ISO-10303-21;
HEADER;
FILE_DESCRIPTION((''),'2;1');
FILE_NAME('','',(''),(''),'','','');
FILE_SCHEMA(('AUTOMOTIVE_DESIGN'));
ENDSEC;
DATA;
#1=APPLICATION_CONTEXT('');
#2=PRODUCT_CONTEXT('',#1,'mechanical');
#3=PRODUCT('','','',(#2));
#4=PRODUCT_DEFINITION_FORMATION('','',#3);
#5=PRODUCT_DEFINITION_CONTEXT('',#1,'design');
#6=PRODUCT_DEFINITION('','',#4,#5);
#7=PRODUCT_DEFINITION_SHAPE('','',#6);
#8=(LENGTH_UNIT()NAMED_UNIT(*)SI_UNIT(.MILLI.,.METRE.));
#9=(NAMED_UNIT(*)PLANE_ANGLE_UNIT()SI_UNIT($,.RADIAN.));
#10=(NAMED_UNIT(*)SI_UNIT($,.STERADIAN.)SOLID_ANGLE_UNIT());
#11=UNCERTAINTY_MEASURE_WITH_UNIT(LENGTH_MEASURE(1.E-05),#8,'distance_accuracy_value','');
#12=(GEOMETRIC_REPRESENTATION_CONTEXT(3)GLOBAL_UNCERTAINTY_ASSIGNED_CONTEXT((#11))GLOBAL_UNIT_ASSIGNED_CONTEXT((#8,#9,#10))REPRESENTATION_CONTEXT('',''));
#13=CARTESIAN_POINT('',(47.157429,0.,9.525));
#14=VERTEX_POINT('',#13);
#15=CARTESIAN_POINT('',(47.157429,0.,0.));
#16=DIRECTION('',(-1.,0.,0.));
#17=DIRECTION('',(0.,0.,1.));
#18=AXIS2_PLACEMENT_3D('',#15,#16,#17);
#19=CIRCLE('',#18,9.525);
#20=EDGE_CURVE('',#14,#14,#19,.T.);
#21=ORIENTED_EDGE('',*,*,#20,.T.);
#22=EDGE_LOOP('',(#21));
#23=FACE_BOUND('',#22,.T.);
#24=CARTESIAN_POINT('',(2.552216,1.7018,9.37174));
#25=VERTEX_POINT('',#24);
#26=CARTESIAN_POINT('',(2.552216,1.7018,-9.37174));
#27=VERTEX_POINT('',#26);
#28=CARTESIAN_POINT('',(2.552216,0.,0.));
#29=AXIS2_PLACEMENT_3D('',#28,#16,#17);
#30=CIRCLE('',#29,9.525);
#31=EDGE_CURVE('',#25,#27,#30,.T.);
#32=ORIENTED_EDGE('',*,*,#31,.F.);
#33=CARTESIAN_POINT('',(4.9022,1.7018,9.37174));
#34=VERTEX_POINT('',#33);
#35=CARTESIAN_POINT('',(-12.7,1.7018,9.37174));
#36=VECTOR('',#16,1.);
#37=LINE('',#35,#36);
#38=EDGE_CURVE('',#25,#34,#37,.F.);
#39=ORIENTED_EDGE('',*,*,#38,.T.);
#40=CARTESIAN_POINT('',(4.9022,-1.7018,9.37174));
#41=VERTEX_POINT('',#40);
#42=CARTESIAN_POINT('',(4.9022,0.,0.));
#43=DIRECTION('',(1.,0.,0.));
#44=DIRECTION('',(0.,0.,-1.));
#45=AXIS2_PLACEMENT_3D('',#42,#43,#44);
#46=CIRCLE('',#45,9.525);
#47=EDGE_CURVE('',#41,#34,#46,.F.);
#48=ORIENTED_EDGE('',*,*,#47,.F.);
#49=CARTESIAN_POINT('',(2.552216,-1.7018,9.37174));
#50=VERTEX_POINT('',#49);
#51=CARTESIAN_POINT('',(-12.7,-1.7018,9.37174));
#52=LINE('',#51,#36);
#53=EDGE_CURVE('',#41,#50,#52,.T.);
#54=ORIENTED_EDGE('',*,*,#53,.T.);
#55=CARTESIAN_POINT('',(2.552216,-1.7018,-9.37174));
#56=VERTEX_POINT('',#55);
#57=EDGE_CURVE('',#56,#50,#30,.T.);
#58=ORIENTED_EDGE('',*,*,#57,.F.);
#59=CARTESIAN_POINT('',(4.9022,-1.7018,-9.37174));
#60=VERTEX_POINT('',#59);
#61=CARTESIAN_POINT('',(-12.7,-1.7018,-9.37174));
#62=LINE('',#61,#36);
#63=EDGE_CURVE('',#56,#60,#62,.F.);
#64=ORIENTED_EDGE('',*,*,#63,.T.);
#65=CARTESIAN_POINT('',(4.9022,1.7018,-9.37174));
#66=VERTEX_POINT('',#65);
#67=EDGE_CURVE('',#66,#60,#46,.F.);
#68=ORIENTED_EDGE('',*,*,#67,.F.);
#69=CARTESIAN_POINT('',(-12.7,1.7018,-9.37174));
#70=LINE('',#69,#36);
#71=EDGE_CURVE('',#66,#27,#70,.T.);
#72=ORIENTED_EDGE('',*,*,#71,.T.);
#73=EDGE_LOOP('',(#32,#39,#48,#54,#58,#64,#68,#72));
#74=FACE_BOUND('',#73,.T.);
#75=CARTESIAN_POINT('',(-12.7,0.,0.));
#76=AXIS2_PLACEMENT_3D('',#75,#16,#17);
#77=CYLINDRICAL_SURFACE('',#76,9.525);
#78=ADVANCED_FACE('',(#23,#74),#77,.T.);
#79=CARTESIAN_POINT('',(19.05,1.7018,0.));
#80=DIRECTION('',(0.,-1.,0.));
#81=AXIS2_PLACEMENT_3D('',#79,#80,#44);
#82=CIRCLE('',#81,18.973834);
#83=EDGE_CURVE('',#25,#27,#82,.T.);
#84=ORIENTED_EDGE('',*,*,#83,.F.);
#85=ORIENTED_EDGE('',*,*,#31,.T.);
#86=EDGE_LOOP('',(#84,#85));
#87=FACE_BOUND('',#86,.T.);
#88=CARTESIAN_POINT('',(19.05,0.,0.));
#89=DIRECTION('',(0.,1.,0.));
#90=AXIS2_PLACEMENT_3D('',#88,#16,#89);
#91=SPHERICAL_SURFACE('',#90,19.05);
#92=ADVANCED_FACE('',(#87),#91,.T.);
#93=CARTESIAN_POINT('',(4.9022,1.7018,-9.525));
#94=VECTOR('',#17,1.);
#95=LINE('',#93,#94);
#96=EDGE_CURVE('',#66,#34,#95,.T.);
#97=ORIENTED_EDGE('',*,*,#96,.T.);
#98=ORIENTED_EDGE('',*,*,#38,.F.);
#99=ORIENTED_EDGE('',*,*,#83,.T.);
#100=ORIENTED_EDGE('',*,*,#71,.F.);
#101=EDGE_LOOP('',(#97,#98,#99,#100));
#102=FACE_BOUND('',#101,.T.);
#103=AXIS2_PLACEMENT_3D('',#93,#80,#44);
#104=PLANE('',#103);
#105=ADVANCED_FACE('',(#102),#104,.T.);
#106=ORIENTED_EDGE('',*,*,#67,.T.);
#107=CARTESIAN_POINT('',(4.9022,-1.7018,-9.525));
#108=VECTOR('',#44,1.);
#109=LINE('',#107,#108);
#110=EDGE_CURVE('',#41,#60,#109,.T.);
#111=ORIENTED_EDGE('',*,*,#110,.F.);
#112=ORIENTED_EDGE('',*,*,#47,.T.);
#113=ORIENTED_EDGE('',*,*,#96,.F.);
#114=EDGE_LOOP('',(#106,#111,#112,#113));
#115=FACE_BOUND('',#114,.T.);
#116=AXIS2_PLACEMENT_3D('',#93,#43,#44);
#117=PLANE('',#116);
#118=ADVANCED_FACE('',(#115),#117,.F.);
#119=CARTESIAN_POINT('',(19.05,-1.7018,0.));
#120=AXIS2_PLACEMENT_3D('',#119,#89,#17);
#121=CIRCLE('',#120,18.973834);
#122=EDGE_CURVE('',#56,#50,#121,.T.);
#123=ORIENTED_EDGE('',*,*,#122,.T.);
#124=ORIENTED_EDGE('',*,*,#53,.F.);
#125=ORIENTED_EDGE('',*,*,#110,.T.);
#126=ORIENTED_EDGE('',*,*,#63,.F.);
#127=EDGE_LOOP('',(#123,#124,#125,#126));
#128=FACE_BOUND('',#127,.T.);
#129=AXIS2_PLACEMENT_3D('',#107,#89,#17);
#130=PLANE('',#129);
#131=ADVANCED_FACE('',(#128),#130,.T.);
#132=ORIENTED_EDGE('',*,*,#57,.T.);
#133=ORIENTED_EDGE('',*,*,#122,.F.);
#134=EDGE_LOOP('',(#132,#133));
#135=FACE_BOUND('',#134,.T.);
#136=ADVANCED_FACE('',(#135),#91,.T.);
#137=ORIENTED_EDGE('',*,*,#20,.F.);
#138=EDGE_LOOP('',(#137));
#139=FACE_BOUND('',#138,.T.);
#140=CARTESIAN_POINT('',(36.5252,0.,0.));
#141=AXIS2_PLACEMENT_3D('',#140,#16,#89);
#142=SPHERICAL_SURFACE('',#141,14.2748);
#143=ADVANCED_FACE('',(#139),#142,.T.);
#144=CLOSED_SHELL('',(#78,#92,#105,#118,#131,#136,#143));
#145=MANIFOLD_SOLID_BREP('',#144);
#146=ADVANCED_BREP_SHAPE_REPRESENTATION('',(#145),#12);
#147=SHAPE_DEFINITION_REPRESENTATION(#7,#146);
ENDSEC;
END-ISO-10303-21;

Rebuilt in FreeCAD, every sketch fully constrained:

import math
import FreeCAD as App
import Part
import Sketcher
from FreeCAD import Vector
Q = App.Units.Quantity

doc = App.newDocument("Part")
body = doc.addObject("PartDesign::Body", "Body")

# Sketch on XY plane
sketch1 = body.newObject("Sketcher::SketchObject", "Sketch")
sketch1.AttachmentSupport = (doc.getObject("XY_Plane"), [""])
sketch1.MapMode = "FlatFace"
sketch1.addGeometry([
    Part.LineSegment(Vector(47, 10, 0), Vector(3, 10, 0)),
    Part.ArcOfCircle(Part.Circle(Vector(19, 0, 0), Vector(0, 0, 1), 19), math.radians(150), math.radians(180)),
    Part.LineSegment(Vector(0, 0, 0), Vector(51, 0, 0)),
    Part.ArcOfCircle(Part.Circle(Vector(37, 0, 0), Vector(0, 0, 1), 14), math.radians(0), math.radians(42)),
], False)
sketch1.addConstraint([
    Sketcher.Constraint("Coincident", 0, 2, 1, 1),
    Sketcher.Constraint("Coincident", 1, 2, 2, 1),
    Sketcher.Constraint("Coincident", 2, 2, 3, 1),
    Sketcher.Constraint("Coincident", 3, 2, 0, 1),
    Sketcher.Constraint("Horizontal", 0),
    Sketcher.Constraint("Horizontal", 2),
    Sketcher.Constraint("Coincident", 1, 2, -1, 1),
    Sketcher.Constraint("PointOnObject", 1, 3, -1),
    Sketcher.Constraint("PointOnObject", 3, 3, -1),
    Sketcher.Constraint("DistanceX", 2, 1, 2, 2, Q("2 in")),
    Sketcher.Constraint("Radius", 1, Q("0.75 in")),
    Sketcher.Constraint("Radius", 3, Q("0.562 in")),
    Sketcher.Constraint("DistanceY", -1, 1, 0, 2, Q("0.375 in")),
])
revolution = body.newObject("PartDesign::Revolution", "Revolution")
revolution.Profile = sketch1
revolution.ReferenceAxis = (sketch1, ["H_Axis"])
revolution.Angle = 360

# Sketch on YZ plane
sketch2 = body.newObject("Sketcher::SketchObject", "Sketch001")
sketch2.AttachmentSupport = (doc.getObject("YZ_Plane"), [""])
sketch2.MapMode = "FlatFace"
sketch2.addGeometry([
    Part.LineSegment(Vector(1.7, 9.5, 0), Vector(-1.7, 9.5, 0)),
    Part.LineSegment(Vector(-1.7, 9.5, 0), Vector(-1.7, -9.5, 0)),
    Part.LineSegment(Vector(-1.7, -9.5, 0), Vector(1.7, -9.5, 0)),
    Part.LineSegment(Vector(1.7, -9.5, 0), Vector(1.7, 9.5, 0)),
], False)
sketch2.addConstraint([
    Sketcher.Constraint("Coincident", 0, 2, 1, 1),
    Sketcher.Constraint("Coincident", 1, 2, 2, 1),
    Sketcher.Constraint("Coincident", 2, 2, 3, 1),
    Sketcher.Constraint("Coincident", 3, 2, 0, 1),
    Sketcher.Constraint("Horizontal", 0),
    Sketcher.Constraint("Vertical", 1),
    Sketcher.Constraint("Horizontal", 2),
    Sketcher.Constraint("Vertical", 3),
    Sketcher.Constraint("Symmetric", 0, 2, 2, 2, -1, 1),
    Sketcher.Constraint("DistanceY", 1, 2, 1, 1, Q("0.75 in")),
    Sketcher.Constraint("DistanceX", 0, 2, 0, 1, Q("0.134 in")),
])
pocket1 = body.newObject("PartDesign::Pocket", "Pocket")
pocket1.Profile = sketch2
pocket1.Length = Q("0.193 in")
pocket1.Reversed = True

doc.recompute()
